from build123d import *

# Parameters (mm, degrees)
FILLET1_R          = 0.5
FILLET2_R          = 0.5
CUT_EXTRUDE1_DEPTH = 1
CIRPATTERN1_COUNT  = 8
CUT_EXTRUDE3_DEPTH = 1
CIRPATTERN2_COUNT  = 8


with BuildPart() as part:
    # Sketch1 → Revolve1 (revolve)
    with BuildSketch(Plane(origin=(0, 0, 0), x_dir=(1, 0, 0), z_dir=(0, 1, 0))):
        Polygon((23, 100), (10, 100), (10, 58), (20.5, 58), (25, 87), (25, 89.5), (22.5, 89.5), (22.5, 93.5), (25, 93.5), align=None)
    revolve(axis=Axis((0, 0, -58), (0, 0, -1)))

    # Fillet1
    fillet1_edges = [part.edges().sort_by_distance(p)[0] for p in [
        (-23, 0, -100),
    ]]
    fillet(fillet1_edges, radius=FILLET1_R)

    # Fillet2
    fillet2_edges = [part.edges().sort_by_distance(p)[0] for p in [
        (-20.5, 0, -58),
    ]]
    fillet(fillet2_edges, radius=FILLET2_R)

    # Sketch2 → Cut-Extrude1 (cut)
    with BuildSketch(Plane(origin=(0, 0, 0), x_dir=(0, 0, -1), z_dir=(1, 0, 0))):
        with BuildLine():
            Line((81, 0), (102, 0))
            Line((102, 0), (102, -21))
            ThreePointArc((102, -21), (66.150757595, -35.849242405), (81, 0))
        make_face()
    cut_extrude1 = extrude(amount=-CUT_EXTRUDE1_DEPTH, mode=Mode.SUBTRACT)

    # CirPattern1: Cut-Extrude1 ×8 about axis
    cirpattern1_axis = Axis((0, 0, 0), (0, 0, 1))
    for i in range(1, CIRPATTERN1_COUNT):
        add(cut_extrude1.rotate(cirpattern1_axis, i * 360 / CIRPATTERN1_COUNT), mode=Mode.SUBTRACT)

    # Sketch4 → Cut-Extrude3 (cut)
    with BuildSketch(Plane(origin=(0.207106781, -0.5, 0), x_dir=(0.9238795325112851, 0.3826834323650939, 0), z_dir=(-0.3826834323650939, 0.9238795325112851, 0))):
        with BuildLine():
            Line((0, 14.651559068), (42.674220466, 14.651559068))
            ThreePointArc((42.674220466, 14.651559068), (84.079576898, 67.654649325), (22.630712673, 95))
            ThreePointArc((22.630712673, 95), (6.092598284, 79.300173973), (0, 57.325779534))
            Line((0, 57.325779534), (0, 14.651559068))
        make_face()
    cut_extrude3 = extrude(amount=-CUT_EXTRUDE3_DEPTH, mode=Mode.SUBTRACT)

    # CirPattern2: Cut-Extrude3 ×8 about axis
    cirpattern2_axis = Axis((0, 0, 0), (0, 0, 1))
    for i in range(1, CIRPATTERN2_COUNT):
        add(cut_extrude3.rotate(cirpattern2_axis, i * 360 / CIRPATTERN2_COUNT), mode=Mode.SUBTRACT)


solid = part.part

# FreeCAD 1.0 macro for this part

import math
import FreeCAD as App
import Part
import Sketcher


def edges_at(feature, points):
    """Names of the edges that pass closest to the given points."""
    edges = feature.Shape.Edges
    near = lambda p: min(range(len(edges)), key=lambda i: edges[i].distToShape(Part.Vertex(*p))[0])
    return sorted({f"Edge{near(p) + 1}" for p in points})

doc = App.newDocument("Part")
body = doc.addObject("PartDesign::Body", "Body")

# Sketch on XZ plane
sketch1 = body.newObject("Sketcher::SketchObject", "Sketch")
sketch1.AttachmentSupport = (doc.getObject("XZ_Plane"), [""])
sketch1.MapMode = "FlatFace"
sketch1.addGeometry([
    Part.LineSegment(App.Vector(23, -100, 0), App.Vector(10, -100, 0)),  # 0
    Part.LineSegment(App.Vector(10, -100, 0), App.Vector(10, -58, 0)),  # 1
    Part.LineSegment(App.Vector(10, -58, 0), App.Vector(20.5, -58, 0)),  # 2
    Part.LineSegment(App.Vector(20.5, -58, 0), App.Vector(25, -87, 0)),  # 3
    Part.LineSegment(App.Vector(25, -87, 0), App.Vector(25, -89.5, 0)),  # 4
    Part.LineSegment(App.Vector(25, -89.5, 0), App.Vector(22.5, -89.5, 0)),  # 5
    Part.LineSegment(App.Vector(22.5, -89.5, 0), App.Vector(22.5, -93.5, 0)),  # 6
    Part.LineSegment(App.Vector(22.5, -93.5, 0), App.Vector(25, -93.5, 0)),  # 7
    Part.LineSegment(App.Vector(25, -93.5, 0), App.Vector(23, -100, 0)),  # 8
], False)
sketch1.addConstraint([
    Sketcher.Constraint("Coincident", 0, 2, 1, 1),
    Sketcher.Constraint("Coincident", 1, 2, 2, 1),
    Sketcher.Constraint("Coincident", 2, 2, 3, 1),
    Sketcher.Constraint("Coincident", 3, 2, 4, 1),
    Sketcher.Constraint("Coincident", 4, 2, 5, 1),
    Sketcher.Constraint("Coincident", 5, 2, 6, 1),
    Sketcher.Constraint("Coincident", 6, 2, 7, 1),
    Sketcher.Constraint("Coincident", 7, 2, 8, 1),
    Sketcher.Constraint("Coincident", 8, 2, 0, 1),
    Sketcher.Constraint("Horizontal", 0),
    Sketcher.Constraint("Vertical", 1),
    Sketcher.Constraint("Horizontal", 2),
    Sketcher.Constraint("Vertical", 4),
    Sketcher.Constraint("Horizontal", 5),
    Sketcher.Constraint("Vertical", 6),
    Sketcher.Constraint("Horizontal", 7),
    Sketcher.Constraint("Vertical", 4, 2, 7, 2),
    Sketcher.Constraint("Equal", 7, 4),
    Sketcher.Constraint("DistanceX", 0, 2, 0, 1, 13.0),
    Sketcher.Constraint("DistanceY", 1, 1, 1, 2, 42.0),
    Sketcher.Constraint("DistanceY", 6, 2, 6, 1, 4.0),
    Sketcher.Constraint("DistanceX", 2, 1, 2, 2, 10.5),
    Sketcher.Constraint("DistanceX", 5, 2, 5, 1, 2.5),
    Sketcher.Constraint("DistanceX", -1, 1, 0, 2, 10.0),
    Sketcher.Constraint("DistanceY", 0, 2, -1, 1, 100.0),
    Sketcher.Constraint("DistanceX", -1, 1, 3, 2, 25.0),
    Sketcher.Constraint("DistanceY", 3, 2, -1, 1, 87.0),
])
revolution = body.newObject("PartDesign::Revolution", "Revolution")
revolution.Profile = sketch1
revolution.ReferenceAxis = (sketch1, ["V_Axis"])
revolution.Angle = 360
doc.recompute()

fillet = body.newObject("PartDesign::Fillet", "Fillet")
fillet.Base = (revolution, edges_at(revolution, [(-23, 0, -100)]))
fillet.Radius = 0.5
doc.recompute()

fillet2 = body.newObject("PartDesign::Fillet", "Fillet001")
fillet2.Base = (fillet, edges_at(fillet, [(-20.5, 0, -58)]))
fillet2.Radius = 0.5

# Sketch on YZ plane
sketch2 = body.newObject("Sketcher::SketchObject", "Sketch001")
sketch2.AttachmentSupport = (doc.getObject("YZ_Plane"), [""])
sketch2.MapMode = "FlatFace"
sketch2.addGeometry([
    Part.LineSegment(App.Vector(0, -102, 0), App.Vector(0, -81, 0)),
    Part.ArcOfCircle(Part.Circle(App.Vector(-21, -81, 0), App.Vector(0, 0, 1), 21), math.radians(0), math.radians(270)),
    Part.LineSegment(App.Vector(-21, -102, 0), App.Vector(0, -102, 0)),
], False)
sketch2.addConstraint([
    Sketcher.Constraint("Tangent", 0, 2, 1, 1),
    Sketcher.Constraint("Tangent", 1, 2, 2, 1),
    Sketcher.Constraint("Coincident", 2, 2, 0, 1),
    Sketcher.Constraint("Vertical", 0),
    Sketcher.Constraint("Horizontal", 2),
    Sketcher.Constraint("PointOnObject", 0, 2, -2),
    Sketcher.Constraint("Radius", 1, 21.0),
    Sketcher.Constraint("DistanceY", 1, 3, -1, 1, 81.0),
])
pocket1 = body.newObject("PartDesign::Pocket", "Pocket")
pocket1.Profile = sketch2
pocket1.Length = 1
doc.recompute()

polarpattern = body.newObject("PartDesign::PolarPattern", "PolarPattern")
polarpattern.Originals = [pocket1]
polarpattern.Axis = (doc.getObject("Z_Axis"), [""])
polarpattern.Angle = 360
polarpattern.Occurrences = 8
body.Tip = polarpattern

# Sketch on an angled plane
sketch3 = body.newObject("Sketcher::SketchObject", "Sketch002")
sketch3.Placement = App.Placement(App.Vector(0.207107, -0.5, 0), App.Rotation(App.Vector(0.923879533, 0.382683432, 0), App.Vector(0, 0, -1.000000001), App.Vector(-0.382683432, 0.923879533, 0), "ZXY"))
sketch3.addGeometry([
    Part.LineSegment(App.Vector(0, 15, 0), App.Vector(43, 15, 0)),
    Part.ArcOfCircle(Part.Circle(App.Vector(43, 57, 0), App.Vector(0, 0, 1), 43), math.radians(-90), math.radians(118)),
    Part.ArcOfCircle(Part.Circle(App.Vector(43, 57, 0), App.Vector(0, 0, 1), 43), math.radians(118), math.radians(180)),
    Part.LineSegment(App.Vector(0, 57, 0), App.Vector(0, 15, 0)),
], False)
sketch3.addConstraint([
    Sketcher.Constraint("Tangent", 0, 2, 1, 1),
    Sketcher.Constraint("Tangent", 1, 2, 2, 1),
    Sketcher.Constraint("Tangent", 2, 2, 3, 1),
    Sketcher.Constraint("Coincident", 3, 2, 0, 1),
    Sketcher.Constraint("Horizontal", 0),
    Sketcher.Constraint("Vertical", 3),
    Sketcher.Constraint("Equal", 1, 2),
    Sketcher.Constraint("PointOnObject", 2, 2, -2),
    Sketcher.Constraint("DistanceY", -1, 1, 1, 2, 95.0),
    Sketcher.Constraint("Radius", 1, 42.67422),
    Sketcher.Constraint("DistanceY", -1, 1, 1, 3, 57.32578),
])
pocket2 = body.newObject("PartDesign::Pocket", "Pocket001")
pocket2.Profile = sketch3
pocket2.Length = 1
doc.recompute()

polarpattern2 = body.newObject("PartDesign::PolarPattern", "PolarPattern001")
polarpattern2.Originals = [pocket2]
polarpattern2.Axis = (doc.getObject("Z_Axis"), [""])
polarpattern2.Angle = 360
polarpattern2.Occurrences = 8
body.Tip = polarpattern2

doc.recompute()
